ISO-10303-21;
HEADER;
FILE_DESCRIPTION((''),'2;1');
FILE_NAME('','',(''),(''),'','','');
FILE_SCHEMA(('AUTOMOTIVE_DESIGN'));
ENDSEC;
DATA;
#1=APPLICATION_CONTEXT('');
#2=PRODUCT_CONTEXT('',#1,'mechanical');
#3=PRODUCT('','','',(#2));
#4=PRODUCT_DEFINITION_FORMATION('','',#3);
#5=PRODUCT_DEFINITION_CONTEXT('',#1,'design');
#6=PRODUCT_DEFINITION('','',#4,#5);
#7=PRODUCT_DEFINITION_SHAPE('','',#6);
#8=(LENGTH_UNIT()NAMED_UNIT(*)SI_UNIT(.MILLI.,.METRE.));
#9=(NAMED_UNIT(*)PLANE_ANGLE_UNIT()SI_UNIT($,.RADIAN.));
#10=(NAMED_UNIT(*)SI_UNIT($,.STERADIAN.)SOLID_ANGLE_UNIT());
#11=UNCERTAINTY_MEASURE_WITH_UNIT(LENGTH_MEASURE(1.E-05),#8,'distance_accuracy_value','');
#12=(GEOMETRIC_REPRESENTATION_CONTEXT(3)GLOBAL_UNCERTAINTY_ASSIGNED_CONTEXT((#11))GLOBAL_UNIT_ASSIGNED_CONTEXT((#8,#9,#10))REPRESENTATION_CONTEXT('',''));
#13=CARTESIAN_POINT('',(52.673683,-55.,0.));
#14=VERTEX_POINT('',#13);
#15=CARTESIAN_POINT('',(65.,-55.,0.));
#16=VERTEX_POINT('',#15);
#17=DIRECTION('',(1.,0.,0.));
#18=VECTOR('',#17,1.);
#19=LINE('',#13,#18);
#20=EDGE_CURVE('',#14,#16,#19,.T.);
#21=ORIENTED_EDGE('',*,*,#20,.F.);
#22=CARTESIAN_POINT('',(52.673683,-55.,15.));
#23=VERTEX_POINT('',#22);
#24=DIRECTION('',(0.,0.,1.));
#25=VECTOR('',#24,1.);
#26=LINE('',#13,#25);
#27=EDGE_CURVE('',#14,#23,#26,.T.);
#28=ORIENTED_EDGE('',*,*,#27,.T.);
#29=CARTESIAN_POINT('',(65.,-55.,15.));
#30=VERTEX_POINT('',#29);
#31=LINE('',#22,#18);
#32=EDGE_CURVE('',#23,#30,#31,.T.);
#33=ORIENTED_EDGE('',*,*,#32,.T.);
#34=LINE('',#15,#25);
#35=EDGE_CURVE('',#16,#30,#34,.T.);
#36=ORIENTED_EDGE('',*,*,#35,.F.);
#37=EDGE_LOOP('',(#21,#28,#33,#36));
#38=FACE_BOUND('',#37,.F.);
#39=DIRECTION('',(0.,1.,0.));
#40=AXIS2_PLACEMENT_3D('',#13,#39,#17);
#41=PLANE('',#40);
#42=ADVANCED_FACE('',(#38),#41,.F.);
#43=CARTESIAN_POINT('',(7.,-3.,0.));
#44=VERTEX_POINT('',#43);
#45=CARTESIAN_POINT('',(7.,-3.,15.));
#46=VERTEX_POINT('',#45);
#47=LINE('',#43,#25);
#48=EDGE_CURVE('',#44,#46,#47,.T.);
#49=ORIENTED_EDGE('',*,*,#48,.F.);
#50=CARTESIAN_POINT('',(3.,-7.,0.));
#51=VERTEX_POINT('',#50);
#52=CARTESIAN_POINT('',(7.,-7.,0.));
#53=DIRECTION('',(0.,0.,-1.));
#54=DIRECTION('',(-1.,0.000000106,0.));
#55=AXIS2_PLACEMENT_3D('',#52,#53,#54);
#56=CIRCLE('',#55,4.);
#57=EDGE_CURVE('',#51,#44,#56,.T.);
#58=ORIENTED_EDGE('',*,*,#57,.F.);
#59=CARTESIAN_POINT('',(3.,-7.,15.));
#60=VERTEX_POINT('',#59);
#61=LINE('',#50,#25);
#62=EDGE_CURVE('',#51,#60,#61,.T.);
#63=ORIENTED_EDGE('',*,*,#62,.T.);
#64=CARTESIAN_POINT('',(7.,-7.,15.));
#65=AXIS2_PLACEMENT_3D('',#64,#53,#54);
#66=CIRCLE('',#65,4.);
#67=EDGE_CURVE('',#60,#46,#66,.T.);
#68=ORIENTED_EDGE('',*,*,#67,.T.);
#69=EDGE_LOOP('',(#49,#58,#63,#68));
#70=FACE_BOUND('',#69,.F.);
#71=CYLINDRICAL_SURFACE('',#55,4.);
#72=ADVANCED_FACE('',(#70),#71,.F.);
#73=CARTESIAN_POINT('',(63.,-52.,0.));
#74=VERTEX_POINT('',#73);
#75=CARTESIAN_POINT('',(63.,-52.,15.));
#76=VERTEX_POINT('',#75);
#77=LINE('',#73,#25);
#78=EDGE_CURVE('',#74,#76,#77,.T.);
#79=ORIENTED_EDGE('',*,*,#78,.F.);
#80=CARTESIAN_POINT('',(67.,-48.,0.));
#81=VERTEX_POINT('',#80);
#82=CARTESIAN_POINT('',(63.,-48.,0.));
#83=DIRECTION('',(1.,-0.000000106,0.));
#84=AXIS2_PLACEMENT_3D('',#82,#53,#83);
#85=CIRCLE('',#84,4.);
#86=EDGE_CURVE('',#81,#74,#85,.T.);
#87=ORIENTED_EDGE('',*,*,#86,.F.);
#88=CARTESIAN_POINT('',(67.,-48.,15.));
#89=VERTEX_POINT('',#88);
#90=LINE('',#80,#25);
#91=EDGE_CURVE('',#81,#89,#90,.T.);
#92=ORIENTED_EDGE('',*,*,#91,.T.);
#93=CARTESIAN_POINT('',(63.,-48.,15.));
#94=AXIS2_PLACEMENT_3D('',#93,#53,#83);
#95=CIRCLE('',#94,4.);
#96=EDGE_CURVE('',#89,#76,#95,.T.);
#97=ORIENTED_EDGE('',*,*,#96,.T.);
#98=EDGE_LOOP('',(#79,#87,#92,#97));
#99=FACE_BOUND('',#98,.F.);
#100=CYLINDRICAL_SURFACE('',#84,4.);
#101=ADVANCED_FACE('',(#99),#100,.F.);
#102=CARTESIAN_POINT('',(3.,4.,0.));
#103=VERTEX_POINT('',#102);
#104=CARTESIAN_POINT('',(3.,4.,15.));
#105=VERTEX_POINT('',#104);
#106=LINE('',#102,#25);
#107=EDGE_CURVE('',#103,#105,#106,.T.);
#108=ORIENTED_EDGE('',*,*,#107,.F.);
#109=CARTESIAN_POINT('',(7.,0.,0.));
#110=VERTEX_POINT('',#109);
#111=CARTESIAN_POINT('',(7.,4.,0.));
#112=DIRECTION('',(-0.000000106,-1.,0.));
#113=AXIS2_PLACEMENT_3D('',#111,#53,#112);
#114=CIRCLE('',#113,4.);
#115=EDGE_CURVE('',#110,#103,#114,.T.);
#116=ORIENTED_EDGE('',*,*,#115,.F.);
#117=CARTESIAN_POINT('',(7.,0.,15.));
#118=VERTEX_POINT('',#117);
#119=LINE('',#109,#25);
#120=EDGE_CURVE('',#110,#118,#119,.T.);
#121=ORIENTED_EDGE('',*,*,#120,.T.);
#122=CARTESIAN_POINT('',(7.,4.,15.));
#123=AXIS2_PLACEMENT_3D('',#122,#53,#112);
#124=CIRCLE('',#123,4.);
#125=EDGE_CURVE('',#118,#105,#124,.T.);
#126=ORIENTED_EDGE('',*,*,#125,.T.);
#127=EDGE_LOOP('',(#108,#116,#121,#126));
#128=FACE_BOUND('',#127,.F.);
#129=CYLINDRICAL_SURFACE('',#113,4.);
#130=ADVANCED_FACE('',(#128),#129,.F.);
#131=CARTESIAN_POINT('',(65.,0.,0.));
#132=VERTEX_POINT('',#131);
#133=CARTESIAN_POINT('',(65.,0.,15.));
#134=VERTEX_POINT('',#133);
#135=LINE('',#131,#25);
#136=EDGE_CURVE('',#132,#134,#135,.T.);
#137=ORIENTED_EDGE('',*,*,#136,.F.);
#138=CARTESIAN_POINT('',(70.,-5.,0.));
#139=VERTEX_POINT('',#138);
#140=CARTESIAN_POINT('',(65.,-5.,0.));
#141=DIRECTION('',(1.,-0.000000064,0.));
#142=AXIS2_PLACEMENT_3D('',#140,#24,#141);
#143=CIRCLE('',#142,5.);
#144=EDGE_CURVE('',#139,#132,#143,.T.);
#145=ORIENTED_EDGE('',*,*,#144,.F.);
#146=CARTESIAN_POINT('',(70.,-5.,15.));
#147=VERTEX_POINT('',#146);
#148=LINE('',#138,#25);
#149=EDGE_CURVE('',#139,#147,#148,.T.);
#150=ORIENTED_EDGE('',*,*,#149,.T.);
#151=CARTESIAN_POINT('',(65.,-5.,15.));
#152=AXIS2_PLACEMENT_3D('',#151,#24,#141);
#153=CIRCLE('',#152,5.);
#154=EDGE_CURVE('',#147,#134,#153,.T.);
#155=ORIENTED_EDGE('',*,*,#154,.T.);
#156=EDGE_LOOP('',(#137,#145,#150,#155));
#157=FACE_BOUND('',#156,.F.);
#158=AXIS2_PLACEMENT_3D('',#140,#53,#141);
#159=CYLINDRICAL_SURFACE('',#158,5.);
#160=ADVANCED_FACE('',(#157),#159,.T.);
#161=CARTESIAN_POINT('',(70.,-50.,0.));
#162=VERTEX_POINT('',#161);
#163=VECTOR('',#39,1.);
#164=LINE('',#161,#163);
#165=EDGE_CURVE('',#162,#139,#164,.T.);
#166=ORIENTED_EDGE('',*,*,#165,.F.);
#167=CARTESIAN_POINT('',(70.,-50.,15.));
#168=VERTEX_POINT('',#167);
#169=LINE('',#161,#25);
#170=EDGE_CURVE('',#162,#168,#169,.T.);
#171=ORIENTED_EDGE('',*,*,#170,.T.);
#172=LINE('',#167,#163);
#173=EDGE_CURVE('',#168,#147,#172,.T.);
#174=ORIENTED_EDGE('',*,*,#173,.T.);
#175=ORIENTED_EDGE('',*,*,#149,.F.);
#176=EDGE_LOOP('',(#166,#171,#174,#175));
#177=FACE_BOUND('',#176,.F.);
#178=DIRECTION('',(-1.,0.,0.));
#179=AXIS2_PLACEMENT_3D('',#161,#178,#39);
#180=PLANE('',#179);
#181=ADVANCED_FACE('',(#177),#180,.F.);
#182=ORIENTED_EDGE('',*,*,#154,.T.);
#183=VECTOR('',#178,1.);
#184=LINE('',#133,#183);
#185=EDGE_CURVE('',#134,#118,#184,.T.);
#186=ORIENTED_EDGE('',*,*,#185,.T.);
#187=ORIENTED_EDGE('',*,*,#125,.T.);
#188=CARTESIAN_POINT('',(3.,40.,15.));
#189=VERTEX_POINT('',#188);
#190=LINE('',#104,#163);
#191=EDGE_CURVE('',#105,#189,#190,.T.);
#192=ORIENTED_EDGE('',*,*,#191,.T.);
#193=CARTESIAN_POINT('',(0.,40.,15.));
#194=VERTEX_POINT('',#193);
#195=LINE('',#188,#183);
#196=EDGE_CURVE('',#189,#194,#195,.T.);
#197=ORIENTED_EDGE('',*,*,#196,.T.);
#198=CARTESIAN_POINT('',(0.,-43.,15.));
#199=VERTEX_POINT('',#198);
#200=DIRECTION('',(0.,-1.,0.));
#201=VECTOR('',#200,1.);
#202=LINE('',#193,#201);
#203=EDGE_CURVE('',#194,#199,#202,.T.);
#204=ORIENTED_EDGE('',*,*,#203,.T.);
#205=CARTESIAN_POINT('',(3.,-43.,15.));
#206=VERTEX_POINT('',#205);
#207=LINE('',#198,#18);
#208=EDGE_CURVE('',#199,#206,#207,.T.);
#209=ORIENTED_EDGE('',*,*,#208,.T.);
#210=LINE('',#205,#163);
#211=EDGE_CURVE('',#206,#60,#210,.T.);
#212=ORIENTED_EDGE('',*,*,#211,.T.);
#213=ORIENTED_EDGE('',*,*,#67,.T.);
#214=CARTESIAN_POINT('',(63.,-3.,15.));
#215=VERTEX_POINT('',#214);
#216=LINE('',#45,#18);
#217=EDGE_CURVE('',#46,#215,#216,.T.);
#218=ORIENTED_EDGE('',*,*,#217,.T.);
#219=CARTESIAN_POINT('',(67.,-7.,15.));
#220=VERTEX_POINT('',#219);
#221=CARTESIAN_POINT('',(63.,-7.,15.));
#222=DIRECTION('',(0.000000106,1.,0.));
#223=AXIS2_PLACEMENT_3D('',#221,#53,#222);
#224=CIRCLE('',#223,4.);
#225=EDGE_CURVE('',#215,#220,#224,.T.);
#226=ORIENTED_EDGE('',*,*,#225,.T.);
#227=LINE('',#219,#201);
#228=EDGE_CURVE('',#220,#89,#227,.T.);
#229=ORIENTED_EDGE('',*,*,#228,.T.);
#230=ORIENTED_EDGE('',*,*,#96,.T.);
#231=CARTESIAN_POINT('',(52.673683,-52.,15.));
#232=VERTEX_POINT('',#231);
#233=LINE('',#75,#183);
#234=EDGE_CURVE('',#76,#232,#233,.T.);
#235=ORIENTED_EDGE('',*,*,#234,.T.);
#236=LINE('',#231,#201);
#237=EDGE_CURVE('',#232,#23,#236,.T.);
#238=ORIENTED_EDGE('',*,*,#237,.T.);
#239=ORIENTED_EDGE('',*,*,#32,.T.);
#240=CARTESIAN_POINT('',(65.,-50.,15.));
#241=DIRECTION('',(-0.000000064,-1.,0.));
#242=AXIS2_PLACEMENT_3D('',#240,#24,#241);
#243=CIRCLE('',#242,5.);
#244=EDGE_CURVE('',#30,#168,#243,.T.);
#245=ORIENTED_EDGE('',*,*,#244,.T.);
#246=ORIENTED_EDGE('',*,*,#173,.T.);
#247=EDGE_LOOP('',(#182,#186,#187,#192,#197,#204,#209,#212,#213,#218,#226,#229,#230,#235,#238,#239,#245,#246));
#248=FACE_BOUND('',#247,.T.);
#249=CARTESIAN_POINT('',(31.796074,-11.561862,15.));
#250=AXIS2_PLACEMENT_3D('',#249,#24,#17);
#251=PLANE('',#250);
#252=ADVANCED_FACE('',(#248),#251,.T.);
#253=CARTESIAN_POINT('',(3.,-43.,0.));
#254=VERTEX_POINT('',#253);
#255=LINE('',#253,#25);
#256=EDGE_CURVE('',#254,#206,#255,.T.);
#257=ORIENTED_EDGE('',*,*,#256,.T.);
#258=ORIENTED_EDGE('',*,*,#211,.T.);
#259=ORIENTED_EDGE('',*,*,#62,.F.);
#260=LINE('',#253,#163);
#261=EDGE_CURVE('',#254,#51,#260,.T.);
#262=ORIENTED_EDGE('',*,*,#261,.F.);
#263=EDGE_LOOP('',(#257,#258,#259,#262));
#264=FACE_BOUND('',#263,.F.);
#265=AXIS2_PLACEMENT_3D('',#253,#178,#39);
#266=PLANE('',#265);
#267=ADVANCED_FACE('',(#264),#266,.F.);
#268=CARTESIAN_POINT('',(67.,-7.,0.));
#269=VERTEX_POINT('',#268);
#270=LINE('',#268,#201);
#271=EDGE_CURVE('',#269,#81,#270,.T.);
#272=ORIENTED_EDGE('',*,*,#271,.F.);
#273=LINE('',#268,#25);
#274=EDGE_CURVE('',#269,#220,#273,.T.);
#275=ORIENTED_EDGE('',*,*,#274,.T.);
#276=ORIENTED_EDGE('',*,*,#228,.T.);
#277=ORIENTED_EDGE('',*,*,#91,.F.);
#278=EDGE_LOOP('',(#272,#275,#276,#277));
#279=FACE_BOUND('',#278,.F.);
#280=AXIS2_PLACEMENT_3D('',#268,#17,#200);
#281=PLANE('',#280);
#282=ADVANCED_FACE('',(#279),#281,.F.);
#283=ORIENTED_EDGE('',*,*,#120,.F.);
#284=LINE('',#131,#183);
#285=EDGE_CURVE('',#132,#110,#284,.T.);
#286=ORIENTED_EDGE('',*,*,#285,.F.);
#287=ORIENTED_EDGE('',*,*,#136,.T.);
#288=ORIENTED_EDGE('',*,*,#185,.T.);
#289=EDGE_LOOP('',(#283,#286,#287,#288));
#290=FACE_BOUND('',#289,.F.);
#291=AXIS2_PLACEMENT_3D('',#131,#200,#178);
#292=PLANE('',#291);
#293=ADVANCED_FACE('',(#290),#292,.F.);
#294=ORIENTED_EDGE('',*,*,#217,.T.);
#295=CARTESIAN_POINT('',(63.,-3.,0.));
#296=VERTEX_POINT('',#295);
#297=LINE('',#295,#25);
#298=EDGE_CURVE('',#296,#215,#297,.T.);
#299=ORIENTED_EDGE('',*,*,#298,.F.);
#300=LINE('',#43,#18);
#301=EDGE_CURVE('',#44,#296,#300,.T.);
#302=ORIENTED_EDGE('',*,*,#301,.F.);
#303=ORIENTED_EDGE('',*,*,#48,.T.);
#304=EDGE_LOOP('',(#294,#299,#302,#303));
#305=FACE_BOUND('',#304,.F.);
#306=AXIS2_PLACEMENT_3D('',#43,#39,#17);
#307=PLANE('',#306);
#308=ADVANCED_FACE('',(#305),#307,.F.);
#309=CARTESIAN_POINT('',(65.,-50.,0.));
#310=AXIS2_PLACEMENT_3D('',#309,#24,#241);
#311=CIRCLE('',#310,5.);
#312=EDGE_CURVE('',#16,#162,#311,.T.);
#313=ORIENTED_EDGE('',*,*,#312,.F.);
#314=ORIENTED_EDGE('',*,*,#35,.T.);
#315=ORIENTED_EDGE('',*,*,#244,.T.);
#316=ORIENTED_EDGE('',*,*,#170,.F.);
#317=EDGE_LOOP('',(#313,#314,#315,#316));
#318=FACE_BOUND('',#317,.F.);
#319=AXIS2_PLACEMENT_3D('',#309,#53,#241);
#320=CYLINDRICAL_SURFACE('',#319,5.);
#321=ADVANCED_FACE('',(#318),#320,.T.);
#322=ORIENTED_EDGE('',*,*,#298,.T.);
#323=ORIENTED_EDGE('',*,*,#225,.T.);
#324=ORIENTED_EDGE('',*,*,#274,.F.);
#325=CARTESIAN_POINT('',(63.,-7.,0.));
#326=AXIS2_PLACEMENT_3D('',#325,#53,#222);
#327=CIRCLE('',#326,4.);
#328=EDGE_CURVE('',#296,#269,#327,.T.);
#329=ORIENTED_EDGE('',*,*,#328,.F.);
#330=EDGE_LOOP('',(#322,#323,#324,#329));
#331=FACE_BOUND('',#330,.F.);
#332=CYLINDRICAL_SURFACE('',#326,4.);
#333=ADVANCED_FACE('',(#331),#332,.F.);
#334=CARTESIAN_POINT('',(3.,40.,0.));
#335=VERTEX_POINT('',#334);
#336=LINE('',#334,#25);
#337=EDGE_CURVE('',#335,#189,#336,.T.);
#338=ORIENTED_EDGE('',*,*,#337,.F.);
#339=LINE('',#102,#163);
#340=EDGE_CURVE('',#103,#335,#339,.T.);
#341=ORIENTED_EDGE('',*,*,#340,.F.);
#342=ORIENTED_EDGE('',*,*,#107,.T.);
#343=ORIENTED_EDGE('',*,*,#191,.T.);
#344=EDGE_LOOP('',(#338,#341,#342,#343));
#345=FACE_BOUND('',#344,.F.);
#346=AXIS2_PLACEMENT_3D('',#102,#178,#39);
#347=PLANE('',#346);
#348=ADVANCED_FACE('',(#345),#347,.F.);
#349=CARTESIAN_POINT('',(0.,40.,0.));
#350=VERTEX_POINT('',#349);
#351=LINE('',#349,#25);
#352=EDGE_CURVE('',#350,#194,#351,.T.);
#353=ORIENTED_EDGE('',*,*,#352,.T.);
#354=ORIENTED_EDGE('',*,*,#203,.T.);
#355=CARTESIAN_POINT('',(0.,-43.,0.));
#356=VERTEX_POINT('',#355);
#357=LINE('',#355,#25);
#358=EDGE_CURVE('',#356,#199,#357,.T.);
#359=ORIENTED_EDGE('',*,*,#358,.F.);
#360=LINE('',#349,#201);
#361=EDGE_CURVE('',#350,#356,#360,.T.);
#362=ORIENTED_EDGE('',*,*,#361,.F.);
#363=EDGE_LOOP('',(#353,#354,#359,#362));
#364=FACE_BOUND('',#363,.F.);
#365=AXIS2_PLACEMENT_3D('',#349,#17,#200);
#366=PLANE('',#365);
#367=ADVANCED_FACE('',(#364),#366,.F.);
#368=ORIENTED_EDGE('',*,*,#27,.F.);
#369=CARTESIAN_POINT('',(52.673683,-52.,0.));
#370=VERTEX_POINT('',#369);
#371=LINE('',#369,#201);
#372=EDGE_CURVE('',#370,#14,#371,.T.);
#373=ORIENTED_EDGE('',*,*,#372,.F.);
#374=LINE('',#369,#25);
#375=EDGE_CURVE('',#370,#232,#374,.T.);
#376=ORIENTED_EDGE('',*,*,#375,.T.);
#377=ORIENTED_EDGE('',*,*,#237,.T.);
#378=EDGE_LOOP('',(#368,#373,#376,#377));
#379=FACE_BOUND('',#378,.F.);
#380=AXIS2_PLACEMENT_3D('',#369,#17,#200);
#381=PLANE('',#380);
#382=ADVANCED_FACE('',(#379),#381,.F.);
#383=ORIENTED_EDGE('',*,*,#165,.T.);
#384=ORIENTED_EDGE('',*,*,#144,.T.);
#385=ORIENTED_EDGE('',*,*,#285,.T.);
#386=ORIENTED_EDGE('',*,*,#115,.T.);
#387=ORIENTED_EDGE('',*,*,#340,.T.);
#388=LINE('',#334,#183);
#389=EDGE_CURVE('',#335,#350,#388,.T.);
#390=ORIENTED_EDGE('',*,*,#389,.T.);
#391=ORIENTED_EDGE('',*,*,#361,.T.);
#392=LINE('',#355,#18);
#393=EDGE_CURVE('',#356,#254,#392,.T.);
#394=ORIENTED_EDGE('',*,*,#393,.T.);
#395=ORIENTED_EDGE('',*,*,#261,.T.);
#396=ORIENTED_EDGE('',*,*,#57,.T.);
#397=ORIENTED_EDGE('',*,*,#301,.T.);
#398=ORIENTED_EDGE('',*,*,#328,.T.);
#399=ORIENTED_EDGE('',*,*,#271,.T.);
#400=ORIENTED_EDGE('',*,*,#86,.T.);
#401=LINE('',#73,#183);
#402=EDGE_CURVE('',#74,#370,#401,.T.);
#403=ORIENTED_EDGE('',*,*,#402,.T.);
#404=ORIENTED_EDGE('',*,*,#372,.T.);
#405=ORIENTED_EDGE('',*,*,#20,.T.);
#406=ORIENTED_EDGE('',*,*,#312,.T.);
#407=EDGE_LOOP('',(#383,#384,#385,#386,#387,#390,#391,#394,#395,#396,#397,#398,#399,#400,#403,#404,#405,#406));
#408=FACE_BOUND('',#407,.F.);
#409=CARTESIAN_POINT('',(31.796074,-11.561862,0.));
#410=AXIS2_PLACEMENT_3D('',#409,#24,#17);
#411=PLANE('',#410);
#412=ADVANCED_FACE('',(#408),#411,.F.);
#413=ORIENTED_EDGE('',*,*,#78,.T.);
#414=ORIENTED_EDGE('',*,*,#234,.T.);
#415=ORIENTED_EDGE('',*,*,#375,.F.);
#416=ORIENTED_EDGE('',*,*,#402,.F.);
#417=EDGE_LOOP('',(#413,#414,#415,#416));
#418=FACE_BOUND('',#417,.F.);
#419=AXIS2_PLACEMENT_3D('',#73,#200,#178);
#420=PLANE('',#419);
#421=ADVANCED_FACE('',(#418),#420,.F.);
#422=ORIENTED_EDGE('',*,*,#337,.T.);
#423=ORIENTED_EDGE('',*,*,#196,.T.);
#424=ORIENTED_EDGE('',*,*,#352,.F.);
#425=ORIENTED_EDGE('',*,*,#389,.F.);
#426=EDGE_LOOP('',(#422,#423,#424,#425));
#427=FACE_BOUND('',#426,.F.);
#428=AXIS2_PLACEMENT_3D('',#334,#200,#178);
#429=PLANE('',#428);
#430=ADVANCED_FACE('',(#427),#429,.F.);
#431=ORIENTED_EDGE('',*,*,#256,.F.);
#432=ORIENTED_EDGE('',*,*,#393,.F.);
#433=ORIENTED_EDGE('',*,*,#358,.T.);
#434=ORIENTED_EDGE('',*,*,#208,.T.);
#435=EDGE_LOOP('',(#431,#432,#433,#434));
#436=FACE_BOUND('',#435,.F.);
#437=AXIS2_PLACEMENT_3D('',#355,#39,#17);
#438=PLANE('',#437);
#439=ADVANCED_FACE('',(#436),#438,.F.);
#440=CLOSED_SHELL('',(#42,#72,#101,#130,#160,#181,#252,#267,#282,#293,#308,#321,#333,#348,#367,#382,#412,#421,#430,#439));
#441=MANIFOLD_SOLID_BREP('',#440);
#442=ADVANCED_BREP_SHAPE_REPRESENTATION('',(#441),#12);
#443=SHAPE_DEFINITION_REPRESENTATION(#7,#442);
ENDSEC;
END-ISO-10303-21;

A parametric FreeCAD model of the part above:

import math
import FreeCAD as App
import Part
import Sketcher
from FreeCAD import Vector

doc = App.newDocument("Part")
body = doc.addObject("PartDesign::Body", "Body")

sketch1 = body.newObject("Sketcher::SketchObject", "Sketch")
sketch1.AttachmentSupport = (doc.getObject("XY_Plane"), [""])
sketch1.MapMode = "FlatFace"
sketch1.addGeometry([
    Part.LineSegment(Vector(0, 40, 0), Vector(0, -43, 0)),
    Part.LineSegment(Vector(0, -43, 0), Vector(3, -43, 0)),
    Part.LineSegment(Vector(3, -43, 0), Vector(3, -7, 0)),
    Part.ArcOfCircle(Part.Circle(Vector(7, -7, 0), Vector(0, 0, 1), 4), math.radians(90), math.radians(180)),
    Part.LineSegment(Vector(7, -3, 0), Vector(63, -3, 0)),
    Part.ArcOfCircle(Part.Circle(Vector(63, -7, 0), Vector(0, 0, 1), 4), math.radians(0), math.radians(90)),
    Part.LineSegment(Vector(67, -7, 0), Vector(67, -48, 0)),
    Part.ArcOfCircle(Part.Circle(Vector(63, -48, 0), Vector(0, 0, 1), 4), math.radians(-90), math.radians(0)),
    Part.LineSegment(Vector(63, -52, 0), Vector(52.7, -52, 0)),
    Part.LineSegment(Vector(52.7, -52, 0), Vector(52.7, -55, 0)),
    Part.LineSegment(Vector(52.7, -55, 0), Vector(65, -55, 0)),
    Part.ArcOfCircle(Part.Circle(Vector(65, -50, 0), Vector(0, 0, 1), 5), math.radians(-90), math.radians(0)),
    Part.LineSegment(Vector(70, -50, 0), Vector(70, -5, 0)),
    Part.ArcOfCircle(Part.Circle(Vector(65, -5, 0), Vector(0, 0, 1), 5), math.radians(0), math.radians(90)),
    Part.LineSegment(Vector(65, 0, 0), Vector(7, 0, 0)),
    Part.ArcOfCircle(Part.Circle(Vector(7, 4, 0), Vector(0, 0, 1), 4), math.radians(-180), math.radians(-90)),
    Part.LineSegment(Vector(3, 4, 0), Vector(3, 40, 0)),
    Part.LineSegment(Vector(3, 40, 0), Vector(0, 40, 0)),
], False)
sketch1.addConstraint([
    Sketcher.Constraint("Coincident", 0, 2, 1, 1),
    Sketcher.Constraint("Coincident", 1, 2, 2, 1),
    Sketcher.Constraint("Tangent", 2, 2, 3, 2),
    Sketcher.Constraint("Tangent", 3, 1, 4, 1),
    Sketcher.Constraint("Tangent", 4, 2, 5, 2),
    Sketcher.Constraint("Tangent", 5, 1, 6, 1),
    Sketcher.Constraint("Tangent", 6, 2, 7, 2),
    Sketcher.Constraint("Tangent", 7, 1, 8, 1),
    Sketcher.Constraint("Coincident", 8, 2, 9, 1),
    Sketcher.Constraint("Coincident", 9, 2, 10, 1),
    Sketcher.Constraint("Tangent", 10, 2, 11, 1),
    Sketcher.Constraint("Tangent", 11, 2, 12, 1),
    Sketcher.Constraint("Tangent", 12, 2, 13, 1),
    Sketcher.Constraint("Tangent", 13, 2, 14, 1),
    Sketcher.Constraint("Tangent", 14, 2, 15, 2),
    Sketcher.Constraint("Tangent", 15, 1, 16, 1),
    Sketcher.Constraint("Coincident", 16, 2, 17, 1),
    Sketcher.Constraint("Coincident", 17, 2, 0, 1),
    Sketcher.Constraint("Vertical", 0),
    Sketcher.Constraint("Horizontal", 1),
    Sketcher.Constraint("Vertical", 2),
    Sketcher.Constraint("Horizontal", 4),
    Sketcher.Constraint("Vertical", 6),
    Sketcher.Constraint("Horizontal", 8),
    Sketcher.Constraint("Vertical", 9),
    Sketcher.Constraint("Horizontal", 10),
    Sketcher.Constraint("Vertical", 12),
    Sketcher.Constraint("Horizontal", 14),
    Sketcher.Constraint("Vertical", 16),
    Sketcher.Constraint("Horizontal", 17),
    Sketcher.Constraint("Equal", 3, 5),
    Sketcher.Constraint("Equal", 5, 7),
    Sketcher.Constraint("Equal", 11, 13),
    Sketcher.Constraint("Equal", 7, 15),
    Sketcher.Constraint("PointOnObject", 0, 2, -2),
    Sketcher.Constraint("PointOnObject", 13, 2, -1),
    Sketcher.Constraint("Vertical", 3, 3, 15, 3),
    Sketcher.Constraint("Equal", 17, 9),
    Sketcher.Constraint("Equal", 2, 16),
    Sketcher.Constraint("Radius", 3, 4.0),
    Sketcher.Constraint("Radius", 11, 5.0),
    Sketcher.Constraint("DistanceX", 1, 1, 1, 2, 3.0),
    Sketcher.Constraint("DistanceX", 4, 1, 4, 2, 56.0),
    Sketcher.Constraint("DistanceX", 14, 2, 14, 1, 58.0),
    Sketcher.Constraint("DistanceY", 0, 2, 0, 1, 83.0),
    Sketcher.Constraint("DistanceY", 2, 1, 2, 2, 36.0),
    Sketcher.Constraint("DistanceY", 6, 2, 6, 1, 41.0),
    Sketcher.Constraint("DistanceX", 8, 2, 8, 1, 10.326317),
])
pad1 = body.newObject("PartDesign::Pad", "Pad")
pad1.Profile = sketch1
pad1.Length = 15

doc.recompute()
